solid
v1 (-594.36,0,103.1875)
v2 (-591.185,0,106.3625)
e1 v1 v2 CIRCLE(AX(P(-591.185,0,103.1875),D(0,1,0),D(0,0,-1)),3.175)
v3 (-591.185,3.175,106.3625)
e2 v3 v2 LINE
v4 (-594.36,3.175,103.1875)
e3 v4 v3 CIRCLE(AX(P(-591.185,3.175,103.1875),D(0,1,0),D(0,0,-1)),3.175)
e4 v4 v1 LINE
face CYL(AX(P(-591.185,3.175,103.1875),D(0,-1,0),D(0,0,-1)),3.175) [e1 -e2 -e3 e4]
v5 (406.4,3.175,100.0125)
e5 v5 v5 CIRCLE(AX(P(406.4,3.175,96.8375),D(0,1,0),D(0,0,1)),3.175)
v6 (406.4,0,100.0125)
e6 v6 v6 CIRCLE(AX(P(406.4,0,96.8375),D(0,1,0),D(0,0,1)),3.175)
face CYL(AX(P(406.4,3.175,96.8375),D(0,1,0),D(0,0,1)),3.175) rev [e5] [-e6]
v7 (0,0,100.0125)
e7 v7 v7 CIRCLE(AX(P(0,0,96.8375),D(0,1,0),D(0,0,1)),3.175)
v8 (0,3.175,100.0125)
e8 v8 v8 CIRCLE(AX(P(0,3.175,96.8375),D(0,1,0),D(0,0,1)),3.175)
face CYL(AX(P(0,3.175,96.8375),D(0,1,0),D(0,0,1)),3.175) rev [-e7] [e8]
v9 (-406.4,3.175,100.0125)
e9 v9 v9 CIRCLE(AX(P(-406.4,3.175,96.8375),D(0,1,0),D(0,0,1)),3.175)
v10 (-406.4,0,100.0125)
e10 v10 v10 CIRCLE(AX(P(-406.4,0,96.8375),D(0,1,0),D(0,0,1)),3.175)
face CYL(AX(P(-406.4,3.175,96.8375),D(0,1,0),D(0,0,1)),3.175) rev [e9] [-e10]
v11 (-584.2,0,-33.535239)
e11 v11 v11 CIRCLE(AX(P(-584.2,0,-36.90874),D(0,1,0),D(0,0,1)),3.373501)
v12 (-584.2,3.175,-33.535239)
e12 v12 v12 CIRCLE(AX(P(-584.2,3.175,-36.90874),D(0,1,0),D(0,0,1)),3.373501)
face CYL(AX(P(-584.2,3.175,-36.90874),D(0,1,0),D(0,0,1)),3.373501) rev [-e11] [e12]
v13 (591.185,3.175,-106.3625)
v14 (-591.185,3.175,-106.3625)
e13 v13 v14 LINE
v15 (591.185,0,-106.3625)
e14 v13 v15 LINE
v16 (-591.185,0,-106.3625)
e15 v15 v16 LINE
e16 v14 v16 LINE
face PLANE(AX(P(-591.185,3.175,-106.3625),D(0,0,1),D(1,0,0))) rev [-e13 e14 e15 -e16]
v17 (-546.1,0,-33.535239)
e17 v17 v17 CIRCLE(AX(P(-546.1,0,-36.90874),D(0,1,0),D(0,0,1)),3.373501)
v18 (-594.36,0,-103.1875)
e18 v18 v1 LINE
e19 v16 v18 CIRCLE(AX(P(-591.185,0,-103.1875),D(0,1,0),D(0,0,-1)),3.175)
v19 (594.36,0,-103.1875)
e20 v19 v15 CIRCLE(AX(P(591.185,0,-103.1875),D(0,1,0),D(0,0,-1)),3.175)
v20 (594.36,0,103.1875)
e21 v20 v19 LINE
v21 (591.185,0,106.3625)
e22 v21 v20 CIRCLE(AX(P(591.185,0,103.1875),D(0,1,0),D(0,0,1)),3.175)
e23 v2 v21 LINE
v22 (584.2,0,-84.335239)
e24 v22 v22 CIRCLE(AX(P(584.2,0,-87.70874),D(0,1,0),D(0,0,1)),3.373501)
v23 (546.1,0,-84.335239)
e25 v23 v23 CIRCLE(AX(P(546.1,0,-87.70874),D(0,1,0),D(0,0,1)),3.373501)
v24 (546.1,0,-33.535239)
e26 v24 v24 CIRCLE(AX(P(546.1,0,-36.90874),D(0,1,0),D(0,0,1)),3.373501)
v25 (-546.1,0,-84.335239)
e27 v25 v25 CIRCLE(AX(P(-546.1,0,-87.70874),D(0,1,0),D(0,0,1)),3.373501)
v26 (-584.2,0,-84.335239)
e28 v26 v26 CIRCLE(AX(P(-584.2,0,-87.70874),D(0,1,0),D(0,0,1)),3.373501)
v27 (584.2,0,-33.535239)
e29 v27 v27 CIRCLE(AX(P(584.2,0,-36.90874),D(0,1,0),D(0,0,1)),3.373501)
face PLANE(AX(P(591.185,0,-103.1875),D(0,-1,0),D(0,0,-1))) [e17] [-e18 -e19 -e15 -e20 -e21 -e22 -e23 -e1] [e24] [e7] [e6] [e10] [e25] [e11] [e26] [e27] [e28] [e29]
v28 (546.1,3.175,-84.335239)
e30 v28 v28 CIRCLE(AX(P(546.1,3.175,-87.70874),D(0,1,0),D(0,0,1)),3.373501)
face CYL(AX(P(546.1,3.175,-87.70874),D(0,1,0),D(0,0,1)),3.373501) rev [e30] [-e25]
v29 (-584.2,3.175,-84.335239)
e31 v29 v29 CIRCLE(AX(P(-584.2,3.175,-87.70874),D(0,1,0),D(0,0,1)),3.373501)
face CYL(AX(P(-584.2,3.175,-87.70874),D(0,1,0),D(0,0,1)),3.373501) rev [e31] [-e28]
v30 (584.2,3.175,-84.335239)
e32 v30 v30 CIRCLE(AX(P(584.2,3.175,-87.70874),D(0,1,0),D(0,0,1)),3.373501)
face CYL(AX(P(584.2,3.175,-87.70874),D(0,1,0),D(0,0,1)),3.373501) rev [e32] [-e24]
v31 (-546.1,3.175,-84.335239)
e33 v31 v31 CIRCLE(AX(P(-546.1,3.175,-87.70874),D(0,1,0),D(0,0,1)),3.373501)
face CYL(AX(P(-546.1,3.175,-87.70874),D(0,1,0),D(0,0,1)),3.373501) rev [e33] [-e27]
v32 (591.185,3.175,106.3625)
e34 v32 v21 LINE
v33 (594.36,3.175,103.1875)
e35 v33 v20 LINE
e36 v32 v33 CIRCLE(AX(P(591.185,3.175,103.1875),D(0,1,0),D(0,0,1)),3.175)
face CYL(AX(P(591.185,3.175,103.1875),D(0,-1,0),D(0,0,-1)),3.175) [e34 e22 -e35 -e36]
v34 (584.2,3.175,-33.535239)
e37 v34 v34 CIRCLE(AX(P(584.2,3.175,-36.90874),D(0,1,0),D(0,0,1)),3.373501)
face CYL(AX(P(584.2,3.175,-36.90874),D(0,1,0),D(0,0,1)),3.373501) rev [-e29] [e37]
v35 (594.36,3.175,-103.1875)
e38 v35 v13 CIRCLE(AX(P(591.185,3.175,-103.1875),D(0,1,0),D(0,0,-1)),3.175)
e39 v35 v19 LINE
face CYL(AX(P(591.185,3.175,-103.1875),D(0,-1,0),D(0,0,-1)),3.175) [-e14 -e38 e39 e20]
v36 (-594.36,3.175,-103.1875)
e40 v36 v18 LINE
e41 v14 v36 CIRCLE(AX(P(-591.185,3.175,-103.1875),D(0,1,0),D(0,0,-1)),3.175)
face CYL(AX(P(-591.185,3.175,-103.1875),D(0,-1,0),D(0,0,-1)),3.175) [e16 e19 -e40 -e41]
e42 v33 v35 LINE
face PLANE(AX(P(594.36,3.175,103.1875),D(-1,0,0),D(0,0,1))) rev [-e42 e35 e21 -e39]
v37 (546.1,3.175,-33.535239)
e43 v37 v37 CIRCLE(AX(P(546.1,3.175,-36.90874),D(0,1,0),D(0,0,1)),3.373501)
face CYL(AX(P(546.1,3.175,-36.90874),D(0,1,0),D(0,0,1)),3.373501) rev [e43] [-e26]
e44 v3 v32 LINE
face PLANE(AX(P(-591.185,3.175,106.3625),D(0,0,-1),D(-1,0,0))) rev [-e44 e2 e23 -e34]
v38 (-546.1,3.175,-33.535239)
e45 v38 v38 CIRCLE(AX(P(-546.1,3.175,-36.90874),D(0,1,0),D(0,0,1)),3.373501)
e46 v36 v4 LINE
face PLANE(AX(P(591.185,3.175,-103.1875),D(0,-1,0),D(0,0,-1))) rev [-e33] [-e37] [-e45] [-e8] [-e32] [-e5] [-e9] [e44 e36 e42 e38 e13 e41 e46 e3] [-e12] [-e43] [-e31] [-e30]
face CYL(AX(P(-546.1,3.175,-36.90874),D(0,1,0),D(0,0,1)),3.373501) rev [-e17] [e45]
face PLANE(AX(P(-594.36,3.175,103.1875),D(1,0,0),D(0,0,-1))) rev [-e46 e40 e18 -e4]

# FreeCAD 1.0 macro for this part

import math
import FreeCAD as App
import Part
import Sketcher
Q = App.Units.Quantity

doc = App.newDocument("Part")
body = doc.addObject("PartDesign::Body", "Body")

# Sketch on XZ plane
sketch1 = doc.addObject("Sketcher::SketchObject", "Sketch")
body.addObject(sketch1)
sketch1.AttachmentSupport = (doc.XZ_Plane, [""])
sketch1.MapMode = "FlatFace"
sketch1.addGeometry([
    Part.LineSegment(App.Vector(-591.2, 106.4, 0), App.Vector(591.2, 106.4, 0)),  # 0
    Part.ArcOfCircle(Part.Circle(App.Vector(591.2, 103.2, 0), App.Vector(0, 0, 1), 3.2), math.radians(0), math.radians(90)),  # 1
    Part.LineSegment(App.Vector(594.4, 103.2, 0), App.Vector(594.4, -103.2, 0)),  # 2
    Part.ArcOfCircle(Part.Circle(App.Vector(591.2, -103.2, 0), App.Vector(0, 0, 1), 3.2), math.radians(-90), math.radians(0)),  # 3
    Part.LineSegment(App.Vector(591.2, -106.4, 0), App.Vector(-591.2, -106.4, 0)),  # 4
    Part.ArcOfCircle(Part.Circle(App.Vector(-591.2, -103.2, 0), App.Vector(0, 0, 1), 3.2), math.radians(-180), math.radians(-90)),  # 5
    Part.LineSegment(App.Vector(-594.4, -103.2, 0), App.Vector(-594.4, 103.2, 0)),  # 6
    Part.ArcOfCircle(Part.Circle(App.Vector(-591.2, 103.2, 0), App.Vector(0, 0, 1), 3.2), math.radians(90), math.radians(180)),  # 7
], False)
sketch1.addConstraint([
    Sketcher.Constraint("Tangent", 0, 2, 1, 2),
    Sketcher.Constraint("Tangent", 1, 1, 2, 1),
    Sketcher.Constraint("Tangent", 2, 2, 3, 2),
    Sketcher.Constraint("Tangent", 3, 1, 4, 1),
    Sketcher.Constraint("Tangent", 4, 2, 5, 2),
    Sketcher.Constraint("Tangent", 5, 1, 6, 1),
    Sketcher.Constraint("Tangent", 6, 2, 7, 2),
    Sketcher.Constraint("Tangent", 7, 1, 0, 1),
    Sketcher.Constraint("Horizontal", 0),
    Sketcher.Constraint("Vertical", 2),
    Sketcher.Constraint("Horizontal", 4),
    Sketcher.Constraint("Vertical", 6),
    Sketcher.Constraint("Equal", 1, 3),
    Sketcher.Constraint("Equal", 3, 5),
    Sketcher.Constraint("Equal", 5, 7),
    Sketcher.Constraint("Symmetric", 1, 3, 5, 3, -1, 1),
    Sketcher.Constraint("Radius", 1, Q("0.125 in")),
    Sketcher.Constraint("DistanceX", 0, 1, 0, 2, Q("46.55 in")),
    Sketcher.Constraint("DistanceY", 2, 2, 2, 1, Q("8.125 in")),
])
pad1 = doc.addObject("PartDesign::Pad", "Pad")
body.addObject(pad1)
pad1.Profile = sketch1
pad1.Length = Q("0.125 in")
pad1.Reversed = True

# Sketch on XZ plane
sketch2 = doc.addObject("Sketcher::SketchObject", "Sketch001")
body.addObject(sketch2)
sketch2.AttachmentSupport = (doc.XZ_Plane, [""])
sketch2.MapMode = "FlatFace"
sketch2.AttachmentOffset = App.Placement(App.Vector(0, 0, -0.125 * 25.4), App.Rotation())
sketch2.addGeometry([
    Part.Circle(App.Vector(0, 96.8, 0), App.Vector(0, 0, 1), 3.2),
    Part.Circle(App.Vector(-406.4, 96.8, 0), App.Vector(0, 0, 1), 3.2),
    Part.Circle(App.Vector(406.4, 96.8, 0), App.Vector(0, 0, 1), 3.2),
], False)
sketch2.addConstraint([
    Sketcher.Constraint("Equal", 0, 1),
    Sketcher.Constraint("Equal", 1, 2),
    Sketcher.Constraint("Symmetric", 1, 3, 2, 3, -2),
    Sketcher.Constraint("PointOnObject", 0, 3, -2),
    Sketcher.Constraint("Horizontal", 0, 3, 1, 3),
    Sketcher.Constraint("Diameter", 0, Q("0.25 in")),
    Sketcher.Constraint("DistanceX", 1, 3, -1, 1, Q("16 in")),
    Sketcher.Constraint("DistanceY", -1, 1, 0, 3, Q("3.8125 in")),
])
doc.recompute()
hole = doc.addObject("PartDesign::Hole", "Hole")
body.addObject(hole)
hole.Profile = sketch2
hole.ThreadType = "None"
hole.Diameter = Q("0.25 in")
hole.DepthType = "ThroughAll"
hole.Reversed = True

# Sketch on XZ plane
sketch3 = doc.addObject("Sketcher::SketchObject", "Sketch002")
body.addObject(sketch3)
sketch3.AttachmentSupport = (doc.XZ_Plane, [""])
sketch3.MapMode = "FlatFace"
sketch3.AttachmentOffset = App.Placement(App.Vector(0, 0, -0.125 * 25.4), App.Rotation())
sketch3.addGeometry([
    Part.Circle(App.Vector(-546.1, -36.9, 0), App.Vector(0, 0, 1), 3.4),  # 0
    Part.Circle(App.Vector(-546.1, -87.7, 0), App.Vector(0, 0, 1), 3.4),  # 1
    Part.Circle(App.Vector(-584.2, -87.7, 0), App.Vector(0, 0, 1), 3.4),  # 2
    Part.Circle(App.Vector(-584.2, -36.9, 0), App.Vector(0, 0, 1), 3.4),  # 3
    Part.Circle(App.Vector(584.2, -36.9, 0), App.Vector(0, 0, 1), 3.4),  # 4
    Part.Circle(App.Vector(546.1, -36.9, 0), App.Vector(0, 0, 1), 3.4),  # 5
    Part.Circle(App.Vector(546.1, -87.7, 0), App.Vector(0, 0, 1), 3.4),  # 6
    Part.Circle(App.Vector(584.2, -87.7, 0), App.Vector(0, 0, 1), 3.4),  # 7
], False)
sketch3.addConstraint([
    Sketcher.Constraint("Equal", 0, 1),
    Sketcher.Constraint("Equal", 1, 2),
    Sketcher.Constraint("Equal", 2, 3),
    Sketcher.Constraint("Equal", 3, 4),
    Sketcher.Constraint("Equal", 4, 5),
    Sketcher.Constraint("Equal", 5, 6),
    Sketcher.Constraint("Equal", 6, 7),
    Sketcher.Constraint("Symmetric", 3, 3, 4, 3, -2),
    Sketcher.Constraint("Symmetric", 0, 3, 5, 3, -2),
    Sketcher.Constraint("Symmetric", 1, 3, 6, 3, -2),
    Sketcher.Constraint("Symmetric", 2, 3, 7, 3, -2),
    Sketcher.Constraint("Horizontal", 1, 3, 2, 3),
    Sketcher.Constraint("Horizontal", 0, 3, 3, 3),
    Sketcher.Constraint("Vertical", 0, 3, 1, 3),
    Sketcher.Constraint("Vertical", 2, 3, 3, 3),
    Sketcher.Constraint("DistanceX", 2, 3, -1, 1, Q("23 in")),
    Sketcher.Constraint("DistanceY", 1, 3, 0, 3, Q("2 in")),
    Sketcher.Constraint("DistanceX", 0, 3, 5, 3, Q("43 in")),
    Sketcher.Constraint("Diameter", 0, Q("6.747002 mm")),
    Sketcher.Constraint("DistanceY", 0, 3, -1, 1, Q("1.4531 in")),
])
doc.recompute()
hole2 = doc.addObject("PartDesign::Hole", "Hole001")
body.addObject(hole2)
hole2.Profile = sketch3
hole2.ThreadType = "None"
hole2.Diameter = 6.747002
hole2.DepthType = "ThroughAll"
hole2.Reversed = True

doc.recompute()
